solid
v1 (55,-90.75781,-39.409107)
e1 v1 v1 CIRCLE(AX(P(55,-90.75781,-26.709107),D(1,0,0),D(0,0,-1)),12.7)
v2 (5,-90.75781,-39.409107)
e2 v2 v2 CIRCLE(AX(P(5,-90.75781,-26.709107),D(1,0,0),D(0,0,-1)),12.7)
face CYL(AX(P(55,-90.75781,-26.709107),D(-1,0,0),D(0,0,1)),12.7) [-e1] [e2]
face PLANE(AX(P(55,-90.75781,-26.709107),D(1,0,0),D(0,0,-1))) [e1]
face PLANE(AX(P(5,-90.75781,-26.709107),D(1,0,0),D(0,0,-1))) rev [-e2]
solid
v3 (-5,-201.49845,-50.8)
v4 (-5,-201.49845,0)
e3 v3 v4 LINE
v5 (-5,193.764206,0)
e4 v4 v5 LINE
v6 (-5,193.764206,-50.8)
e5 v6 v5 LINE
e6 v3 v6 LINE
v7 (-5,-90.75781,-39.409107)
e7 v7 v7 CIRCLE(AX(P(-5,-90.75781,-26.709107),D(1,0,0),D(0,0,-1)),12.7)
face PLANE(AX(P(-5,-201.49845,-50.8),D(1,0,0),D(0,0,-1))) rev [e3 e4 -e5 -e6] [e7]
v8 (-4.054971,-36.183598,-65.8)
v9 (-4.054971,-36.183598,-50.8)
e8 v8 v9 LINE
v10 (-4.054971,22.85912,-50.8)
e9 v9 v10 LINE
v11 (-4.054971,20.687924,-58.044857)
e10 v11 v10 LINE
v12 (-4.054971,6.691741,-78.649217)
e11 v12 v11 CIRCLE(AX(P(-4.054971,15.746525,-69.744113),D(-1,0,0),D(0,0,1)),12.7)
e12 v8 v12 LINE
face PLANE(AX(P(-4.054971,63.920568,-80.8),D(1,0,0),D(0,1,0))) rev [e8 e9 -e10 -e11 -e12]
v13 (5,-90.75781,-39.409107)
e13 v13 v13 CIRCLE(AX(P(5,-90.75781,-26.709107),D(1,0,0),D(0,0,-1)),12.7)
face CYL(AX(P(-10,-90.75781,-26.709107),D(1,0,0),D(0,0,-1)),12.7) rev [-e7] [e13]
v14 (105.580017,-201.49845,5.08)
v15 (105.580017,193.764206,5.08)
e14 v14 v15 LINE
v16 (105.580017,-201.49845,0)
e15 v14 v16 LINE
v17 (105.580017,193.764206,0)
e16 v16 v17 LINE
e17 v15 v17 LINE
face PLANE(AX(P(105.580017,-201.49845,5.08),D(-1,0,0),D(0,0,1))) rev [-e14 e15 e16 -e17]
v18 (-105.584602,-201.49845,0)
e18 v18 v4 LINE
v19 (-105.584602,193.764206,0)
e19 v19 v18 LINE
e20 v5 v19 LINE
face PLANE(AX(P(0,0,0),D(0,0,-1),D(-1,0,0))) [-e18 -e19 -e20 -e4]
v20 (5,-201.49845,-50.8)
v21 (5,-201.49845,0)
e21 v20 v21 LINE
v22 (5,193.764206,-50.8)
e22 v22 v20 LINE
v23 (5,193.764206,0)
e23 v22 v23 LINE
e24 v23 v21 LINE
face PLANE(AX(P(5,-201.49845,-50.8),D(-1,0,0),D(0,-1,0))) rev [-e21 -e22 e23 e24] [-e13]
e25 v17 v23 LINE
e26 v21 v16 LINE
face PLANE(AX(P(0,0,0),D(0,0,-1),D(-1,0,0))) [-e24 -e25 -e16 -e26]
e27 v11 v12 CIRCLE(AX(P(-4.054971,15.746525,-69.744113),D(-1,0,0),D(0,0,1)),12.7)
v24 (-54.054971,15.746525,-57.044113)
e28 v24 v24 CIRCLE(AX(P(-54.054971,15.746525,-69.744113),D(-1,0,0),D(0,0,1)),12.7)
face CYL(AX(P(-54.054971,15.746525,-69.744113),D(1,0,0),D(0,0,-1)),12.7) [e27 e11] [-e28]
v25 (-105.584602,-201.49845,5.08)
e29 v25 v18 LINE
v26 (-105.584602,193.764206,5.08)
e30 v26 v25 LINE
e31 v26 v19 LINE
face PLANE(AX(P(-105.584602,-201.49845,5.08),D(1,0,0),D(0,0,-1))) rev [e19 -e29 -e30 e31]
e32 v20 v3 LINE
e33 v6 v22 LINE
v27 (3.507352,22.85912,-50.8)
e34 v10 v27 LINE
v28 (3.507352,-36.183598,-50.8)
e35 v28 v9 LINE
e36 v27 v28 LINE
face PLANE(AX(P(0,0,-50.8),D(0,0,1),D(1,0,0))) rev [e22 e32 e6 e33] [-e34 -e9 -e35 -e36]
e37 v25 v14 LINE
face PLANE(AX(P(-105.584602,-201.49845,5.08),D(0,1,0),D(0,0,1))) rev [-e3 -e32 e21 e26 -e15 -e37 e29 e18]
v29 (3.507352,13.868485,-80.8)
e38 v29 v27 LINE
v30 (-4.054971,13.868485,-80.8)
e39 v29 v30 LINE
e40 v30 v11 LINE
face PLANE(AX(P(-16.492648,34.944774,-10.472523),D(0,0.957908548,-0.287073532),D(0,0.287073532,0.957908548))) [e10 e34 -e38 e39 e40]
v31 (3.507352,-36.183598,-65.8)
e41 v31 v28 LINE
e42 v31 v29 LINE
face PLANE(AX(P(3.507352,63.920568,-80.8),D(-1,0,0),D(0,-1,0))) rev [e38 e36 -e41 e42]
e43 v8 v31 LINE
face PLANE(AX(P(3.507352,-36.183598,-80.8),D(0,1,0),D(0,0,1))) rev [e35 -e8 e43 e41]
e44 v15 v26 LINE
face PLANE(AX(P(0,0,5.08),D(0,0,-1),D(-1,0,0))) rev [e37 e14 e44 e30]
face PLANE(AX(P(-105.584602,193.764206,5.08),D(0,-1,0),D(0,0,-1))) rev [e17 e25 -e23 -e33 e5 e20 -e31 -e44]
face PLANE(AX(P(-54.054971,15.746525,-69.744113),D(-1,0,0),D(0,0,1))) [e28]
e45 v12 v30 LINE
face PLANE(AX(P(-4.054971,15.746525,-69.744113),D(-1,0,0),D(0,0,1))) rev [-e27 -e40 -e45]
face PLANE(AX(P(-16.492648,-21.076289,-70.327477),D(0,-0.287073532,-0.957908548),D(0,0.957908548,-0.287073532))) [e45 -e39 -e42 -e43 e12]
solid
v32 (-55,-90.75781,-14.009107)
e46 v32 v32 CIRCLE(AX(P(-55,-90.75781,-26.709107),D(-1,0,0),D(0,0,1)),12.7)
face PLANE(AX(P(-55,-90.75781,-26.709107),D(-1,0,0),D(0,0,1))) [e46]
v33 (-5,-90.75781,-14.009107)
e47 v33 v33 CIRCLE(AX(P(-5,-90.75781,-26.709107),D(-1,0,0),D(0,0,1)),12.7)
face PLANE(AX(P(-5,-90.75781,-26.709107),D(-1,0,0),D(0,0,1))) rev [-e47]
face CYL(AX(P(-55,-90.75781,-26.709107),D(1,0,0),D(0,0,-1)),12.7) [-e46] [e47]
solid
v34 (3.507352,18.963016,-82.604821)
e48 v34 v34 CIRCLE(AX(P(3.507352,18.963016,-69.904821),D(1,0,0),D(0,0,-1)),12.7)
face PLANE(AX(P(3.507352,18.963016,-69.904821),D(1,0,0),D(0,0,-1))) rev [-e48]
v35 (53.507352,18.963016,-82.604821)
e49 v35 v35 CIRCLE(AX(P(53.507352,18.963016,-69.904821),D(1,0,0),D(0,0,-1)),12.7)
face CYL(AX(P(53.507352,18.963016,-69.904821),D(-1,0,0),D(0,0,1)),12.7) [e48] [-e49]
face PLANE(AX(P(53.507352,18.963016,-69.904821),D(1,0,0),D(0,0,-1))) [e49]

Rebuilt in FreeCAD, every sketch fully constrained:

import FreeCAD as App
import Part
import Sketcher
Q = App.Units.Quantity

doc = App.newDocument("Part")
body = doc.addObject("PartDesign::Body", "Body")

# Sketch on XY plane
sketch1 = body.newObject("Sketcher::SketchObject", "Sketch")
sketch1.AttachmentSupport = (doc.getObject("XY_Plane"), [""])
sketch1.MapMode = "FlatFace"
sketch1.addGeometry([
    Part.LineSegment(App.Vector(-106, 194, 0), App.Vector(-106, -201, 0)),
    Part.LineSegment(App.Vector(-106, -201, 0), App.Vector(106, -201, 0)),
    Part.LineSegment(App.Vector(106, -201, 0), App.Vector(106, 194, 0)),
    Part.LineSegment(App.Vector(106, 194, 0), App.Vector(-106, 194, 0)),
], False)
sketch1.addConstraint([
    Sketcher.Constraint("Coincident", 0, 2, 1, 1),
    Sketcher.Constraint("Coincident", 1, 2, 2, 1),
    Sketcher.Constraint("Coincident", 2, 2, 3, 1),
    Sketcher.Constraint("Coincident", 3, 2, 0, 1),
    Sketcher.Constraint("Vertical", 0),
    Sketcher.Constraint("Horizontal", 1),
    Sketcher.Constraint("Vertical", 2),
    Sketcher.Constraint("Horizontal", 3),
    Sketcher.Constraint("DistanceX", 1, 1, 1, 2, Q("211.164619 mm")),
    Sketcher.Constraint("DistanceY", 0, 2, 0, 1, Q("395.262656 mm")),
    Sketcher.Constraint("DistanceY", 0, 2, -1, 1, Q("201.49845 mm")),
    Sketcher.Constraint("DistanceX", 0, 2, -1, 1, Q("105.584602 mm")),
])
pad1 = body.newObject("PartDesign::Pad", "Pad")
pad1.Profile = sketch1
pad1.Length = 5.08

# Sketch on XY plane
sketch2 = body.newObject("Sketcher::SketchObject", "Sketch001")
sketch2.AttachmentSupport = (doc.getObject("XY_Plane"), [""])
sketch2.MapMode = "FlatFace"
sketch2.addGeometry([
    Part.LineSegment(App.Vector(5, 194, 0), App.Vector(5, -201, 0)),
    Part.LineSegment(App.Vector(5, -201, 0), App.Vector(-5, -201, 0)),
    Part.LineSegment(App.Vector(-5, -201, 0), App.Vector(-5, 194, 0)),
    Part.LineSegment(App.Vector(-5, 194, 0), App.Vector(5, 194, 0)),
], False)
sketch2.addConstraint([
    Sketcher.Constraint("Coincident", 0, 2, 1, 1),
    Sketcher.Constraint("Coincident", 1, 2, 2, 1),
    Sketcher.Constraint("Coincident", 2, 2, 3, 1),
    Sketcher.Constraint("Coincident", 3, 2, 0, 1),
    Sketcher.Constraint("Vertical", 0),
    Sketcher.Constraint("Horizontal", 1),
    Sketcher.Constraint("Vertical", 2),
    Sketcher.Constraint("Horizontal", 3),
    Sketcher.Constraint("DistanceX", 1, 2, 1, 1, Q("10 mm")),
    Sketcher.Constraint("DistanceX", -1, 1, 0, 2, Q("5 mm")),
    Sketcher.Constraint("DistanceY", 0, 2, 0, 1, Q("395.262656 mm")),
    Sketcher.Constraint("DistanceY", 0, 2, -1, 1, Q("201.49845 mm")),
])
pad2 = body.newObject("PartDesign::Pad", "Pad001")
pad2.Profile = sketch2
pad2.Length = 50.8
pad2.Reversed = True

# Sketch on YZ plane
sketch3 = body.newObject("Sketcher::SketchObject", "Sketch002")
sketch3.AttachmentSupport = (doc.getObject("YZ_Plane"), [""])
sketch3.MapMode = "FlatFace"
sketch3.AttachmentOffset = App.Placement(App.Vector(0, 0, 5), App.Rotation())
sketch3.addGeometry(Part.Circle(App.Vector(-91, -27, 0), App.Vector(0, 0, 1), 13), False)
sketch3.addConstraint([
    Sketcher.Constraint("Diameter", 0, Q("25.4 mm")),
    Sketcher.Constraint("DistanceX", 0, 3, -1, 1, Q("90.75781 mm")),
    Sketcher.Constraint("DistanceY", 0, 3, -1, 1, Q("26.709107 mm")),
])
pocket1 = body.newObject("PartDesign::Pocket", "Pocket")
pocket1.Profile = sketch3
pocket1.Length = 15

# Sketch on XY plane
sketch4 = body.newObject("Sketcher::SketchObject", "Sketch003")
sketch4.AttachmentSupport = (doc.getObject("XY_Plane"), [""])
sketch4.MapMode = "FlatFace"
sketch4.AttachmentOffset = App.Placement(App.Vector(0, 0, -50.8), App.Rotation())
sketch4.addGeometry([
    Part.LineSegment(App.Vector(4, 64, 0), App.Vector(4, -36, 0)),
    Part.LineSegment(App.Vector(4, -36, 0), App.Vector(-4, -36, 0)),
    Part.LineSegment(App.Vector(-4, -36, 0), App.Vector(-4, 64, 0)),
    Part.LineSegment(App.Vector(-4, 64, 0), App.Vector(4, 64, 0)),
], False)
sketch4.addConstraint([
    Sketcher.Constraint("Coincident", 0, 2, 1, 1),
    Sketcher.Constraint("Coincident", 1, 2, 2, 1),
    Sketcher.Constraint("Coincident", 2, 2, 3, 1),
    Sketcher.Constraint("Coincident", 3, 2, 0, 1),
    Sketcher.Constraint("Vertical", 0),
    Sketcher.Constraint("Horizontal", 1),
    Sketcher.Constraint("Vertical", 2),
    Sketcher.Constraint("Horizontal", 3),
    Sketcher.Constraint("DistanceX", 1, 2, 1, 1, Q("7.562323 mm")),
    Sketcher.Constraint("DistanceY", 0, 2, 0, 1, Q("100.104166 mm")),
    Sketcher.Constraint("DistanceX", 1, 2, -1, 1, Q("4.054971 mm")),
    Sketcher.Constraint("DistanceY", 0, 2, -1, 1, Q("36.183598 mm")),
])
pad3 = body.newObject("PartDesign::Pad", "Pad002")
pad3.Profile = sketch4
pad3.Length = 30
pad3.Reversed = True

# Sketch on YZ plane
sketch5 = body.newObject("Sketcher::SketchObject", "Sketch004")
sketch5.AttachmentSupport = (doc.getObject("YZ_Plane"), [""])
sketch5.MapMode = "FlatFace"
sketch5.AttachmentOffset = App.Placement(App.Vector(0, 0, 3.507352), App.Rotation())
sketch5.addGeometry([
    Part.LineSegment(App.Vector(14, -81, 0), App.Vector(-36, -66, 0)),  # 0
    Part.LineSegment(App.Vector(-36, -66, 0), App.Vector(-36, -81, 0)),  # 1
    Part.LineSegment(App.Vector(-36, -81, 0), App.Vector(14, -81, 0)),  # 2
    Part.LineSegment(App.Vector(23, -51, 0), App.Vector(14, -81, 0)),  # 3
    Part.LineSegment(App.Vector(14, -81, 0), App.Vector(64, -81, 0)),  # 4
    Part.LineSegment(App.Vector(64, -81, 0), App.Vector(64, -51, 0)),  # 5
    Part.LineSegment(App.Vector(64, -51, 0), App.Vector(23, -51, 0)),  # 6
], False)
sketch5.addConstraint([
    Sketcher.Constraint("Coincident", 0, 2, 1, 1),
    Sketcher.Constraint("Coincident", 1, 2, 2, 1),
    Sketcher.Constraint("Coincident", 2, 2, 0, 1),
    Sketcher.Constraint("Coincident", 3, 2, 4, 1),
    Sketcher.Constraint("Coincident", 4, 2, 5, 1),
    Sketcher.Constraint("Coincident", 5, 2, 6, 1),
    Sketcher.Constraint("Coincident", 6, 2, 3, 1),
    Sketcher.Constraint("Vertical", 1),
    Sketcher.Constraint("Horizontal", 2),
    Sketcher.Constraint("Horizontal", 4),
    Sketcher.Constraint("Vertical", 5),
    Sketcher.Constraint("Horizontal", 6),
    Sketcher.Constraint("Coincident", 3, 2, 2, 2),
    Sketcher.Constraint("Perpendicular", 0, 3),
    Sketcher.Constraint("Equal", 2, 4),
    Sketcher.Constraint("DistanceY", 1, 2, 1, 1, Q("15 mm")),
    Sketcher.Constraint("DistanceY", 5, 1, 5, 2, Q("30 mm")),
    Sketcher.Constraint("DistanceY", 0, 2, -1, 1, Q("65.8 mm")),
    Sketcher.Constraint("DistanceX", 6, 2, 6, 1, Q("41.061448 mm")),
    Sketcher.Constraint("DistanceX", -1, 1, 6, 2, Q("22.85912 mm")),
])
pocket2 = body.newObject("PartDesign::Pocket", "Pocket001")
pocket2.Profile = sketch5
pocket2.Length = 20

# Sketch on YZ plane
sketch6 = body.newObject("Sketcher::SketchObject", "Sketch005")
sketch6.AttachmentSupport = (doc.getObject("YZ_Plane"), [""])
sketch6.MapMode = "FlatFace"
sketch6.AttachmentOffset = App.Placement(App.Vector(0, 0, -4.054971), App.Rotation())
sketch6.addGeometry(Part.Circle(App.Vector(16, -70, 0), App.Vector(0, 0, 1), 13), False)
sketch6.addConstraint([
    Sketcher.Constraint("Diameter", 0, Q("25.4 mm")),
    Sketcher.Constraint("DistanceX", -1, 1, 0, 3, Q("15.746525 mm")),
    Sketcher.Constraint("DistanceY", 0, 3, -1, 1, Q("69.744113 mm")),
])
pad4 = body.newObject("PartDesign::Pad", "Pad003")
pad4.Profile = sketch6
pad4.Length = 50
pad4.Reversed = True
body2 = doc.addObject("PartDesign::Body", "Body001")

# Sketch on YZ plane
sketch7 = body2.newObject("Sketcher::SketchObject", "Sketch006")
sketch7.AttachmentSupport = (doc.getObject("YZ_Plane001"), [""])
sketch7.MapMode = "FlatFace"
sketch7.AttachmentOffset = App.Placement(App.Vector(0, 0, 3.507352), App.Rotation())
sketch7.addGeometry(Part.Circle(App.Vector(19, -70, 0), App.Vector(0, 0, 1), 13), False)
sketch7.addConstraint([
    Sketcher.Constraint("Diameter", 0, Q("25.4 mm")),
    Sketcher.Constraint("DistanceY", 0, 3, -1, 1, Q("69.904821 mm")),
    Sketcher.Constraint("DistanceX", -1, 1, 0, 3, Q("18.963016 mm")),
])
pad5 = body2.newObject("PartDesign::Pad", "Pad004")
pad5.Profile = sketch7
pad5.Length = 50
body3 = doc.addObject("PartDesign::Body", "Body002")

# Sketch on YZ plane
sketch8 = body3.newObject("Sketcher::SketchObject", "Sketch007")
sketch8.AttachmentSupport = (doc.getObject("YZ_Plane002"), [""])
sketch8.MapMode = "FlatFace"
sketch8.AttachmentOffset = App.Placement(App.Vector(0, 0, 5), App.Rotation())
sketch8.addGeometry(Part.Circle(App.Vector(-91, -27, 0), App.Vector(0, 0, 1), 13), False)
sketch8.addConstraint([
    Sketcher.Constraint("Diameter", 0, Q("25.4 mm")),
    Sketcher.Constraint("DistanceX", 0, 3, -1, 1, Q("90.75781 mm")),
    Sketcher.Constraint("DistanceY", 0, 3, -1, 1, Q("26.709107 mm")),
])
pad6 = body3.newObject("PartDesign::Pad", "Pad005")
pad6.Profile = sketch8
pad6.Length = 50
body4 = doc.addObject("PartDesign::Body", "Body003")

# Sketch on YZ plane
sketch9 = body4.newObject("Sketcher::SketchObject", "Sketch008")
sketch9.AttachmentSupport = (doc.getObject("YZ_Plane003"), [""])
sketch9.MapMode = "FlatFace"
sketch9.AttachmentOffset = App.Placement(App.Vector(0, 0, -5), App.Rotation())
sketch9.addGeometry(Part.Circle(App.Vector(-91, -27, 0), App.Vector(0, 0, 1), 13), False)
sketch9.addConstraint([
    Sketcher.Constraint("Diameter", 0, Q("25.4 mm")),
    Sketcher.Constraint("DistanceX", 0, 3, -1, 1, Q("90.75781 mm")),
    Sketcher.Constraint("DistanceY", 0, 3, -1, 1, Q("26.709107 mm")),
])
pad7 = body4.newObject("PartDesign::Pad", "Pad006")
pad7.Profile = sketch9
pad7.Length = 50
pad7.Reversed = True

doc.recompute()
